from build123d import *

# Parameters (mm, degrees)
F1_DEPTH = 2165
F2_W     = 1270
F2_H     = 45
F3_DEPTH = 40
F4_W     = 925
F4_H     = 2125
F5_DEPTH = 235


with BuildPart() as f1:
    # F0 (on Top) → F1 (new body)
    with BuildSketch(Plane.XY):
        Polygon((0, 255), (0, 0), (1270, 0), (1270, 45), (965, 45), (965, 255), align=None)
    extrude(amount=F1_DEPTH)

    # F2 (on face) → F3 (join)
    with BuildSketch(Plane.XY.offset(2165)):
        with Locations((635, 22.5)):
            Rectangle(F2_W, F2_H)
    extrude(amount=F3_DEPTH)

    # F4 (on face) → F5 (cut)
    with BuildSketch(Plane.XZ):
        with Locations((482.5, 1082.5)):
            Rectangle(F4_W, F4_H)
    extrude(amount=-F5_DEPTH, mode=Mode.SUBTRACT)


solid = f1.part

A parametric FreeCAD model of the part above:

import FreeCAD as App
import Part
import Sketcher

V = App.Vector

doc = App.newDocument("Part")
body = doc.addObject("PartDesign::Body", "Body")

sketch1 = body.newObject("Sketcher::SketchObject", "Sketch")
sketch1.AttachmentSupport = (doc.getObject("XY_Plane"), [""])
sketch1.MapMode = "FlatFace"
sketch1.addGeometry(Part.LineSegment(V(0, 255, 0), V(0, 0, 0)), False)
sketch1.addGeometry(Part.LineSegment(V(0, 0, 0), V(1270, 0, 0)), False)
sketch1.addGeometry(Part.LineSegment(V(1270, 0, 0), V(1270, 45, 0)), False)
sketch1.addGeometry(Part.LineSegment(V(1270, 45, 0), V(965, 45, 0)), False)
sketch1.addGeometry(Part.LineSegment(V(965, 45, 0), V(965, 255, 0)), False)
sketch1.addGeometry(Part.LineSegment(V(965, 255, 0), V(0, 255, 0)), False)
sketch1.addConstraint(Sketcher.Constraint("Coincident", 0, 2, 1, 1))
sketch1.addConstraint(Sketcher.Constraint("Coincident", 1, 2, 2, 1))
sketch1.addConstraint(Sketcher.Constraint("Coincident", 2, 2, 3, 1))
sketch1.addConstraint(Sketcher.Constraint("Coincident", 3, 2, 4, 1))
sketch1.addConstraint(Sketcher.Constraint("Coincident", 4, 2, 5, 1))
sketch1.addConstraint(Sketcher.Constraint("Coincident", 5, 2, 0, 1))
sketch1.addConstraint(Sketcher.Constraint("Vertical", 0))
sketch1.addConstraint(Sketcher.Constraint("Horizontal", 1))
sketch1.addConstraint(Sketcher.Constraint("Vertical", 2))
sketch1.addConstraint(Sketcher.Constraint("Horizontal", 3))
sketch1.addConstraint(Sketcher.Constraint("Vertical", 4))
sketch1.addConstraint(Sketcher.Constraint("Horizontal", 5))
sketch1.addConstraint(Sketcher.Constraint("Coincident", 0, 2, -1, 1))
sketch1.addConstraint(Sketcher.Constraint("DistanceX", 1, 1, 1, 2, 1270.0))
sketch1.addConstraint(Sketcher.Constraint("DistanceX", 3, 2, 3, 1, 305.0))
sketch1.addConstraint(Sketcher.Constraint("DistanceY", 0, 2, 0, 1, 255.0))
sketch1.addConstraint(Sketcher.Constraint("DistanceY", 2, 1, 2, 2, 45.0))
pad1 = body.newObject("PartDesign::Pad", "Pad")
pad1.Profile = sketch1
pad1.Length = 2165

sketch2 = body.newObject("Sketcher::SketchObject", "Sketch001")
sketch2.AttachmentSupport = (doc.getObject("XY_Plane"), [""])
sketch2.MapMode = "FlatFace"
sketch2.AttachmentOffset = App.Placement(V(0, 0, 2165), App.Rotation())
sketch2.addGeometry(Part.LineSegment(V(0, 45, 0), V(0, 0, 0)), False)
sketch2.addGeometry(Part.LineSegment(V(0, 0, 0), V(1270, 0, 0)), False)
sketch2.addGeometry(Part.LineSegment(V(1270, 0, 0), V(1270, 45, 0)), False)
sketch2.addGeometry(Part.LineSegment(V(1270, 45, 0), V(0, 45, 0)), False)
sketch2.addConstraint(Sketcher.Constraint("Coincident", 0, 2, 1, 1))
sketch2.addConstraint(Sketcher.Constraint("Coincident", 1, 2, 2, 1))
sketch2.addConstraint(Sketcher.Constraint("Coincident", 2, 2, 3, 1))
sketch2.addConstraint(Sketcher.Constraint("Coincident", 3, 2, 0, 1))
sketch2.addConstraint(Sketcher.Constraint("Vertical", 0))
sketch2.addConstraint(Sketcher.Constraint("Horizontal", 1))
sketch2.addConstraint(Sketcher.Constraint("Vertical", 2))
sketch2.addConstraint(Sketcher.Constraint("Horizontal", 3))
sketch2.addConstraint(Sketcher.Constraint("Coincident", 0, 2, -1, 1))
sketch2.addConstraint(Sketcher.Constraint("DistanceX", 1, 1, 1, 2, 1270.0))
sketch2.addConstraint(Sketcher.Constraint("DistanceY", 0, 2, 0, 1, 45.0))
pad2 = body.newObject("PartDesign::Pad", "Pad001")
pad2.Profile = sketch2
pad2.Length = 40

sketch3 = body.newObject("Sketcher::SketchObject", "Sketch002")
sketch3.AttachmentSupport = (doc.getObject("XZ_Plane"), [""])
sketch3.MapMode = "FlatFace"
sketch3.addGeometry(Part.LineSegment(V(20, 2145, 0), V(20, 20, 0)), False)
sketch3.addGeometry(Part.LineSegment(V(20, 20, 0), V(945, 20, 0)), False)
sketch3.addGeometry(Part.LineSegment(V(945, 20, 0), V(945, 2145, 0)), False)
sketch3.addGeometry(Part.LineSegment(V(945, 2145, 0), V(20, 2145, 0)), False)
sketch3.addConstraint(Sketcher.Constraint("Coincident", 0, 2, 1, 1))
sketch3.addConstraint(Sketcher.Constraint("Coincident", 1, 2, 2, 1))
sketch3.addConstraint(Sketcher.Constraint("Coincident", 2, 2, 3, 1))
sketch3.addConstraint(Sketcher.Constraint("Coincident", 3, 2, 0, 1))
sketch3.addConstraint(Sketcher.Constraint("Vertical", 0))
sketch3.addConstraint(Sketcher.Constraint("Horizontal", 1))
sketch3.addConstraint(Sketcher.Constraint("Vertical", 2))
sketch3.addConstraint(Sketcher.Constraint("Horizontal", 3))
sketch3.addConstraint(Sketcher.Constraint("DistanceX", 1, 1, 1, 2, 925.0))
sketch3.addConstraint(Sketcher.Constraint("DistanceY", 0, 2, 0, 1, 2125.0))
sketch3.addConstraint(Sketcher.Constraint("DistanceX", -1, 1, 0, 2, 20.0))
sketch3.addConstraint(Sketcher.Constraint("DistanceY", -1, 1, 0, 2, 20.0))
pocket1 = body.newObject("PartDesign::Pocket", "Pocket")
pocket1.Profile = sketch3
pocket1.Length = 235

doc.recompute()
